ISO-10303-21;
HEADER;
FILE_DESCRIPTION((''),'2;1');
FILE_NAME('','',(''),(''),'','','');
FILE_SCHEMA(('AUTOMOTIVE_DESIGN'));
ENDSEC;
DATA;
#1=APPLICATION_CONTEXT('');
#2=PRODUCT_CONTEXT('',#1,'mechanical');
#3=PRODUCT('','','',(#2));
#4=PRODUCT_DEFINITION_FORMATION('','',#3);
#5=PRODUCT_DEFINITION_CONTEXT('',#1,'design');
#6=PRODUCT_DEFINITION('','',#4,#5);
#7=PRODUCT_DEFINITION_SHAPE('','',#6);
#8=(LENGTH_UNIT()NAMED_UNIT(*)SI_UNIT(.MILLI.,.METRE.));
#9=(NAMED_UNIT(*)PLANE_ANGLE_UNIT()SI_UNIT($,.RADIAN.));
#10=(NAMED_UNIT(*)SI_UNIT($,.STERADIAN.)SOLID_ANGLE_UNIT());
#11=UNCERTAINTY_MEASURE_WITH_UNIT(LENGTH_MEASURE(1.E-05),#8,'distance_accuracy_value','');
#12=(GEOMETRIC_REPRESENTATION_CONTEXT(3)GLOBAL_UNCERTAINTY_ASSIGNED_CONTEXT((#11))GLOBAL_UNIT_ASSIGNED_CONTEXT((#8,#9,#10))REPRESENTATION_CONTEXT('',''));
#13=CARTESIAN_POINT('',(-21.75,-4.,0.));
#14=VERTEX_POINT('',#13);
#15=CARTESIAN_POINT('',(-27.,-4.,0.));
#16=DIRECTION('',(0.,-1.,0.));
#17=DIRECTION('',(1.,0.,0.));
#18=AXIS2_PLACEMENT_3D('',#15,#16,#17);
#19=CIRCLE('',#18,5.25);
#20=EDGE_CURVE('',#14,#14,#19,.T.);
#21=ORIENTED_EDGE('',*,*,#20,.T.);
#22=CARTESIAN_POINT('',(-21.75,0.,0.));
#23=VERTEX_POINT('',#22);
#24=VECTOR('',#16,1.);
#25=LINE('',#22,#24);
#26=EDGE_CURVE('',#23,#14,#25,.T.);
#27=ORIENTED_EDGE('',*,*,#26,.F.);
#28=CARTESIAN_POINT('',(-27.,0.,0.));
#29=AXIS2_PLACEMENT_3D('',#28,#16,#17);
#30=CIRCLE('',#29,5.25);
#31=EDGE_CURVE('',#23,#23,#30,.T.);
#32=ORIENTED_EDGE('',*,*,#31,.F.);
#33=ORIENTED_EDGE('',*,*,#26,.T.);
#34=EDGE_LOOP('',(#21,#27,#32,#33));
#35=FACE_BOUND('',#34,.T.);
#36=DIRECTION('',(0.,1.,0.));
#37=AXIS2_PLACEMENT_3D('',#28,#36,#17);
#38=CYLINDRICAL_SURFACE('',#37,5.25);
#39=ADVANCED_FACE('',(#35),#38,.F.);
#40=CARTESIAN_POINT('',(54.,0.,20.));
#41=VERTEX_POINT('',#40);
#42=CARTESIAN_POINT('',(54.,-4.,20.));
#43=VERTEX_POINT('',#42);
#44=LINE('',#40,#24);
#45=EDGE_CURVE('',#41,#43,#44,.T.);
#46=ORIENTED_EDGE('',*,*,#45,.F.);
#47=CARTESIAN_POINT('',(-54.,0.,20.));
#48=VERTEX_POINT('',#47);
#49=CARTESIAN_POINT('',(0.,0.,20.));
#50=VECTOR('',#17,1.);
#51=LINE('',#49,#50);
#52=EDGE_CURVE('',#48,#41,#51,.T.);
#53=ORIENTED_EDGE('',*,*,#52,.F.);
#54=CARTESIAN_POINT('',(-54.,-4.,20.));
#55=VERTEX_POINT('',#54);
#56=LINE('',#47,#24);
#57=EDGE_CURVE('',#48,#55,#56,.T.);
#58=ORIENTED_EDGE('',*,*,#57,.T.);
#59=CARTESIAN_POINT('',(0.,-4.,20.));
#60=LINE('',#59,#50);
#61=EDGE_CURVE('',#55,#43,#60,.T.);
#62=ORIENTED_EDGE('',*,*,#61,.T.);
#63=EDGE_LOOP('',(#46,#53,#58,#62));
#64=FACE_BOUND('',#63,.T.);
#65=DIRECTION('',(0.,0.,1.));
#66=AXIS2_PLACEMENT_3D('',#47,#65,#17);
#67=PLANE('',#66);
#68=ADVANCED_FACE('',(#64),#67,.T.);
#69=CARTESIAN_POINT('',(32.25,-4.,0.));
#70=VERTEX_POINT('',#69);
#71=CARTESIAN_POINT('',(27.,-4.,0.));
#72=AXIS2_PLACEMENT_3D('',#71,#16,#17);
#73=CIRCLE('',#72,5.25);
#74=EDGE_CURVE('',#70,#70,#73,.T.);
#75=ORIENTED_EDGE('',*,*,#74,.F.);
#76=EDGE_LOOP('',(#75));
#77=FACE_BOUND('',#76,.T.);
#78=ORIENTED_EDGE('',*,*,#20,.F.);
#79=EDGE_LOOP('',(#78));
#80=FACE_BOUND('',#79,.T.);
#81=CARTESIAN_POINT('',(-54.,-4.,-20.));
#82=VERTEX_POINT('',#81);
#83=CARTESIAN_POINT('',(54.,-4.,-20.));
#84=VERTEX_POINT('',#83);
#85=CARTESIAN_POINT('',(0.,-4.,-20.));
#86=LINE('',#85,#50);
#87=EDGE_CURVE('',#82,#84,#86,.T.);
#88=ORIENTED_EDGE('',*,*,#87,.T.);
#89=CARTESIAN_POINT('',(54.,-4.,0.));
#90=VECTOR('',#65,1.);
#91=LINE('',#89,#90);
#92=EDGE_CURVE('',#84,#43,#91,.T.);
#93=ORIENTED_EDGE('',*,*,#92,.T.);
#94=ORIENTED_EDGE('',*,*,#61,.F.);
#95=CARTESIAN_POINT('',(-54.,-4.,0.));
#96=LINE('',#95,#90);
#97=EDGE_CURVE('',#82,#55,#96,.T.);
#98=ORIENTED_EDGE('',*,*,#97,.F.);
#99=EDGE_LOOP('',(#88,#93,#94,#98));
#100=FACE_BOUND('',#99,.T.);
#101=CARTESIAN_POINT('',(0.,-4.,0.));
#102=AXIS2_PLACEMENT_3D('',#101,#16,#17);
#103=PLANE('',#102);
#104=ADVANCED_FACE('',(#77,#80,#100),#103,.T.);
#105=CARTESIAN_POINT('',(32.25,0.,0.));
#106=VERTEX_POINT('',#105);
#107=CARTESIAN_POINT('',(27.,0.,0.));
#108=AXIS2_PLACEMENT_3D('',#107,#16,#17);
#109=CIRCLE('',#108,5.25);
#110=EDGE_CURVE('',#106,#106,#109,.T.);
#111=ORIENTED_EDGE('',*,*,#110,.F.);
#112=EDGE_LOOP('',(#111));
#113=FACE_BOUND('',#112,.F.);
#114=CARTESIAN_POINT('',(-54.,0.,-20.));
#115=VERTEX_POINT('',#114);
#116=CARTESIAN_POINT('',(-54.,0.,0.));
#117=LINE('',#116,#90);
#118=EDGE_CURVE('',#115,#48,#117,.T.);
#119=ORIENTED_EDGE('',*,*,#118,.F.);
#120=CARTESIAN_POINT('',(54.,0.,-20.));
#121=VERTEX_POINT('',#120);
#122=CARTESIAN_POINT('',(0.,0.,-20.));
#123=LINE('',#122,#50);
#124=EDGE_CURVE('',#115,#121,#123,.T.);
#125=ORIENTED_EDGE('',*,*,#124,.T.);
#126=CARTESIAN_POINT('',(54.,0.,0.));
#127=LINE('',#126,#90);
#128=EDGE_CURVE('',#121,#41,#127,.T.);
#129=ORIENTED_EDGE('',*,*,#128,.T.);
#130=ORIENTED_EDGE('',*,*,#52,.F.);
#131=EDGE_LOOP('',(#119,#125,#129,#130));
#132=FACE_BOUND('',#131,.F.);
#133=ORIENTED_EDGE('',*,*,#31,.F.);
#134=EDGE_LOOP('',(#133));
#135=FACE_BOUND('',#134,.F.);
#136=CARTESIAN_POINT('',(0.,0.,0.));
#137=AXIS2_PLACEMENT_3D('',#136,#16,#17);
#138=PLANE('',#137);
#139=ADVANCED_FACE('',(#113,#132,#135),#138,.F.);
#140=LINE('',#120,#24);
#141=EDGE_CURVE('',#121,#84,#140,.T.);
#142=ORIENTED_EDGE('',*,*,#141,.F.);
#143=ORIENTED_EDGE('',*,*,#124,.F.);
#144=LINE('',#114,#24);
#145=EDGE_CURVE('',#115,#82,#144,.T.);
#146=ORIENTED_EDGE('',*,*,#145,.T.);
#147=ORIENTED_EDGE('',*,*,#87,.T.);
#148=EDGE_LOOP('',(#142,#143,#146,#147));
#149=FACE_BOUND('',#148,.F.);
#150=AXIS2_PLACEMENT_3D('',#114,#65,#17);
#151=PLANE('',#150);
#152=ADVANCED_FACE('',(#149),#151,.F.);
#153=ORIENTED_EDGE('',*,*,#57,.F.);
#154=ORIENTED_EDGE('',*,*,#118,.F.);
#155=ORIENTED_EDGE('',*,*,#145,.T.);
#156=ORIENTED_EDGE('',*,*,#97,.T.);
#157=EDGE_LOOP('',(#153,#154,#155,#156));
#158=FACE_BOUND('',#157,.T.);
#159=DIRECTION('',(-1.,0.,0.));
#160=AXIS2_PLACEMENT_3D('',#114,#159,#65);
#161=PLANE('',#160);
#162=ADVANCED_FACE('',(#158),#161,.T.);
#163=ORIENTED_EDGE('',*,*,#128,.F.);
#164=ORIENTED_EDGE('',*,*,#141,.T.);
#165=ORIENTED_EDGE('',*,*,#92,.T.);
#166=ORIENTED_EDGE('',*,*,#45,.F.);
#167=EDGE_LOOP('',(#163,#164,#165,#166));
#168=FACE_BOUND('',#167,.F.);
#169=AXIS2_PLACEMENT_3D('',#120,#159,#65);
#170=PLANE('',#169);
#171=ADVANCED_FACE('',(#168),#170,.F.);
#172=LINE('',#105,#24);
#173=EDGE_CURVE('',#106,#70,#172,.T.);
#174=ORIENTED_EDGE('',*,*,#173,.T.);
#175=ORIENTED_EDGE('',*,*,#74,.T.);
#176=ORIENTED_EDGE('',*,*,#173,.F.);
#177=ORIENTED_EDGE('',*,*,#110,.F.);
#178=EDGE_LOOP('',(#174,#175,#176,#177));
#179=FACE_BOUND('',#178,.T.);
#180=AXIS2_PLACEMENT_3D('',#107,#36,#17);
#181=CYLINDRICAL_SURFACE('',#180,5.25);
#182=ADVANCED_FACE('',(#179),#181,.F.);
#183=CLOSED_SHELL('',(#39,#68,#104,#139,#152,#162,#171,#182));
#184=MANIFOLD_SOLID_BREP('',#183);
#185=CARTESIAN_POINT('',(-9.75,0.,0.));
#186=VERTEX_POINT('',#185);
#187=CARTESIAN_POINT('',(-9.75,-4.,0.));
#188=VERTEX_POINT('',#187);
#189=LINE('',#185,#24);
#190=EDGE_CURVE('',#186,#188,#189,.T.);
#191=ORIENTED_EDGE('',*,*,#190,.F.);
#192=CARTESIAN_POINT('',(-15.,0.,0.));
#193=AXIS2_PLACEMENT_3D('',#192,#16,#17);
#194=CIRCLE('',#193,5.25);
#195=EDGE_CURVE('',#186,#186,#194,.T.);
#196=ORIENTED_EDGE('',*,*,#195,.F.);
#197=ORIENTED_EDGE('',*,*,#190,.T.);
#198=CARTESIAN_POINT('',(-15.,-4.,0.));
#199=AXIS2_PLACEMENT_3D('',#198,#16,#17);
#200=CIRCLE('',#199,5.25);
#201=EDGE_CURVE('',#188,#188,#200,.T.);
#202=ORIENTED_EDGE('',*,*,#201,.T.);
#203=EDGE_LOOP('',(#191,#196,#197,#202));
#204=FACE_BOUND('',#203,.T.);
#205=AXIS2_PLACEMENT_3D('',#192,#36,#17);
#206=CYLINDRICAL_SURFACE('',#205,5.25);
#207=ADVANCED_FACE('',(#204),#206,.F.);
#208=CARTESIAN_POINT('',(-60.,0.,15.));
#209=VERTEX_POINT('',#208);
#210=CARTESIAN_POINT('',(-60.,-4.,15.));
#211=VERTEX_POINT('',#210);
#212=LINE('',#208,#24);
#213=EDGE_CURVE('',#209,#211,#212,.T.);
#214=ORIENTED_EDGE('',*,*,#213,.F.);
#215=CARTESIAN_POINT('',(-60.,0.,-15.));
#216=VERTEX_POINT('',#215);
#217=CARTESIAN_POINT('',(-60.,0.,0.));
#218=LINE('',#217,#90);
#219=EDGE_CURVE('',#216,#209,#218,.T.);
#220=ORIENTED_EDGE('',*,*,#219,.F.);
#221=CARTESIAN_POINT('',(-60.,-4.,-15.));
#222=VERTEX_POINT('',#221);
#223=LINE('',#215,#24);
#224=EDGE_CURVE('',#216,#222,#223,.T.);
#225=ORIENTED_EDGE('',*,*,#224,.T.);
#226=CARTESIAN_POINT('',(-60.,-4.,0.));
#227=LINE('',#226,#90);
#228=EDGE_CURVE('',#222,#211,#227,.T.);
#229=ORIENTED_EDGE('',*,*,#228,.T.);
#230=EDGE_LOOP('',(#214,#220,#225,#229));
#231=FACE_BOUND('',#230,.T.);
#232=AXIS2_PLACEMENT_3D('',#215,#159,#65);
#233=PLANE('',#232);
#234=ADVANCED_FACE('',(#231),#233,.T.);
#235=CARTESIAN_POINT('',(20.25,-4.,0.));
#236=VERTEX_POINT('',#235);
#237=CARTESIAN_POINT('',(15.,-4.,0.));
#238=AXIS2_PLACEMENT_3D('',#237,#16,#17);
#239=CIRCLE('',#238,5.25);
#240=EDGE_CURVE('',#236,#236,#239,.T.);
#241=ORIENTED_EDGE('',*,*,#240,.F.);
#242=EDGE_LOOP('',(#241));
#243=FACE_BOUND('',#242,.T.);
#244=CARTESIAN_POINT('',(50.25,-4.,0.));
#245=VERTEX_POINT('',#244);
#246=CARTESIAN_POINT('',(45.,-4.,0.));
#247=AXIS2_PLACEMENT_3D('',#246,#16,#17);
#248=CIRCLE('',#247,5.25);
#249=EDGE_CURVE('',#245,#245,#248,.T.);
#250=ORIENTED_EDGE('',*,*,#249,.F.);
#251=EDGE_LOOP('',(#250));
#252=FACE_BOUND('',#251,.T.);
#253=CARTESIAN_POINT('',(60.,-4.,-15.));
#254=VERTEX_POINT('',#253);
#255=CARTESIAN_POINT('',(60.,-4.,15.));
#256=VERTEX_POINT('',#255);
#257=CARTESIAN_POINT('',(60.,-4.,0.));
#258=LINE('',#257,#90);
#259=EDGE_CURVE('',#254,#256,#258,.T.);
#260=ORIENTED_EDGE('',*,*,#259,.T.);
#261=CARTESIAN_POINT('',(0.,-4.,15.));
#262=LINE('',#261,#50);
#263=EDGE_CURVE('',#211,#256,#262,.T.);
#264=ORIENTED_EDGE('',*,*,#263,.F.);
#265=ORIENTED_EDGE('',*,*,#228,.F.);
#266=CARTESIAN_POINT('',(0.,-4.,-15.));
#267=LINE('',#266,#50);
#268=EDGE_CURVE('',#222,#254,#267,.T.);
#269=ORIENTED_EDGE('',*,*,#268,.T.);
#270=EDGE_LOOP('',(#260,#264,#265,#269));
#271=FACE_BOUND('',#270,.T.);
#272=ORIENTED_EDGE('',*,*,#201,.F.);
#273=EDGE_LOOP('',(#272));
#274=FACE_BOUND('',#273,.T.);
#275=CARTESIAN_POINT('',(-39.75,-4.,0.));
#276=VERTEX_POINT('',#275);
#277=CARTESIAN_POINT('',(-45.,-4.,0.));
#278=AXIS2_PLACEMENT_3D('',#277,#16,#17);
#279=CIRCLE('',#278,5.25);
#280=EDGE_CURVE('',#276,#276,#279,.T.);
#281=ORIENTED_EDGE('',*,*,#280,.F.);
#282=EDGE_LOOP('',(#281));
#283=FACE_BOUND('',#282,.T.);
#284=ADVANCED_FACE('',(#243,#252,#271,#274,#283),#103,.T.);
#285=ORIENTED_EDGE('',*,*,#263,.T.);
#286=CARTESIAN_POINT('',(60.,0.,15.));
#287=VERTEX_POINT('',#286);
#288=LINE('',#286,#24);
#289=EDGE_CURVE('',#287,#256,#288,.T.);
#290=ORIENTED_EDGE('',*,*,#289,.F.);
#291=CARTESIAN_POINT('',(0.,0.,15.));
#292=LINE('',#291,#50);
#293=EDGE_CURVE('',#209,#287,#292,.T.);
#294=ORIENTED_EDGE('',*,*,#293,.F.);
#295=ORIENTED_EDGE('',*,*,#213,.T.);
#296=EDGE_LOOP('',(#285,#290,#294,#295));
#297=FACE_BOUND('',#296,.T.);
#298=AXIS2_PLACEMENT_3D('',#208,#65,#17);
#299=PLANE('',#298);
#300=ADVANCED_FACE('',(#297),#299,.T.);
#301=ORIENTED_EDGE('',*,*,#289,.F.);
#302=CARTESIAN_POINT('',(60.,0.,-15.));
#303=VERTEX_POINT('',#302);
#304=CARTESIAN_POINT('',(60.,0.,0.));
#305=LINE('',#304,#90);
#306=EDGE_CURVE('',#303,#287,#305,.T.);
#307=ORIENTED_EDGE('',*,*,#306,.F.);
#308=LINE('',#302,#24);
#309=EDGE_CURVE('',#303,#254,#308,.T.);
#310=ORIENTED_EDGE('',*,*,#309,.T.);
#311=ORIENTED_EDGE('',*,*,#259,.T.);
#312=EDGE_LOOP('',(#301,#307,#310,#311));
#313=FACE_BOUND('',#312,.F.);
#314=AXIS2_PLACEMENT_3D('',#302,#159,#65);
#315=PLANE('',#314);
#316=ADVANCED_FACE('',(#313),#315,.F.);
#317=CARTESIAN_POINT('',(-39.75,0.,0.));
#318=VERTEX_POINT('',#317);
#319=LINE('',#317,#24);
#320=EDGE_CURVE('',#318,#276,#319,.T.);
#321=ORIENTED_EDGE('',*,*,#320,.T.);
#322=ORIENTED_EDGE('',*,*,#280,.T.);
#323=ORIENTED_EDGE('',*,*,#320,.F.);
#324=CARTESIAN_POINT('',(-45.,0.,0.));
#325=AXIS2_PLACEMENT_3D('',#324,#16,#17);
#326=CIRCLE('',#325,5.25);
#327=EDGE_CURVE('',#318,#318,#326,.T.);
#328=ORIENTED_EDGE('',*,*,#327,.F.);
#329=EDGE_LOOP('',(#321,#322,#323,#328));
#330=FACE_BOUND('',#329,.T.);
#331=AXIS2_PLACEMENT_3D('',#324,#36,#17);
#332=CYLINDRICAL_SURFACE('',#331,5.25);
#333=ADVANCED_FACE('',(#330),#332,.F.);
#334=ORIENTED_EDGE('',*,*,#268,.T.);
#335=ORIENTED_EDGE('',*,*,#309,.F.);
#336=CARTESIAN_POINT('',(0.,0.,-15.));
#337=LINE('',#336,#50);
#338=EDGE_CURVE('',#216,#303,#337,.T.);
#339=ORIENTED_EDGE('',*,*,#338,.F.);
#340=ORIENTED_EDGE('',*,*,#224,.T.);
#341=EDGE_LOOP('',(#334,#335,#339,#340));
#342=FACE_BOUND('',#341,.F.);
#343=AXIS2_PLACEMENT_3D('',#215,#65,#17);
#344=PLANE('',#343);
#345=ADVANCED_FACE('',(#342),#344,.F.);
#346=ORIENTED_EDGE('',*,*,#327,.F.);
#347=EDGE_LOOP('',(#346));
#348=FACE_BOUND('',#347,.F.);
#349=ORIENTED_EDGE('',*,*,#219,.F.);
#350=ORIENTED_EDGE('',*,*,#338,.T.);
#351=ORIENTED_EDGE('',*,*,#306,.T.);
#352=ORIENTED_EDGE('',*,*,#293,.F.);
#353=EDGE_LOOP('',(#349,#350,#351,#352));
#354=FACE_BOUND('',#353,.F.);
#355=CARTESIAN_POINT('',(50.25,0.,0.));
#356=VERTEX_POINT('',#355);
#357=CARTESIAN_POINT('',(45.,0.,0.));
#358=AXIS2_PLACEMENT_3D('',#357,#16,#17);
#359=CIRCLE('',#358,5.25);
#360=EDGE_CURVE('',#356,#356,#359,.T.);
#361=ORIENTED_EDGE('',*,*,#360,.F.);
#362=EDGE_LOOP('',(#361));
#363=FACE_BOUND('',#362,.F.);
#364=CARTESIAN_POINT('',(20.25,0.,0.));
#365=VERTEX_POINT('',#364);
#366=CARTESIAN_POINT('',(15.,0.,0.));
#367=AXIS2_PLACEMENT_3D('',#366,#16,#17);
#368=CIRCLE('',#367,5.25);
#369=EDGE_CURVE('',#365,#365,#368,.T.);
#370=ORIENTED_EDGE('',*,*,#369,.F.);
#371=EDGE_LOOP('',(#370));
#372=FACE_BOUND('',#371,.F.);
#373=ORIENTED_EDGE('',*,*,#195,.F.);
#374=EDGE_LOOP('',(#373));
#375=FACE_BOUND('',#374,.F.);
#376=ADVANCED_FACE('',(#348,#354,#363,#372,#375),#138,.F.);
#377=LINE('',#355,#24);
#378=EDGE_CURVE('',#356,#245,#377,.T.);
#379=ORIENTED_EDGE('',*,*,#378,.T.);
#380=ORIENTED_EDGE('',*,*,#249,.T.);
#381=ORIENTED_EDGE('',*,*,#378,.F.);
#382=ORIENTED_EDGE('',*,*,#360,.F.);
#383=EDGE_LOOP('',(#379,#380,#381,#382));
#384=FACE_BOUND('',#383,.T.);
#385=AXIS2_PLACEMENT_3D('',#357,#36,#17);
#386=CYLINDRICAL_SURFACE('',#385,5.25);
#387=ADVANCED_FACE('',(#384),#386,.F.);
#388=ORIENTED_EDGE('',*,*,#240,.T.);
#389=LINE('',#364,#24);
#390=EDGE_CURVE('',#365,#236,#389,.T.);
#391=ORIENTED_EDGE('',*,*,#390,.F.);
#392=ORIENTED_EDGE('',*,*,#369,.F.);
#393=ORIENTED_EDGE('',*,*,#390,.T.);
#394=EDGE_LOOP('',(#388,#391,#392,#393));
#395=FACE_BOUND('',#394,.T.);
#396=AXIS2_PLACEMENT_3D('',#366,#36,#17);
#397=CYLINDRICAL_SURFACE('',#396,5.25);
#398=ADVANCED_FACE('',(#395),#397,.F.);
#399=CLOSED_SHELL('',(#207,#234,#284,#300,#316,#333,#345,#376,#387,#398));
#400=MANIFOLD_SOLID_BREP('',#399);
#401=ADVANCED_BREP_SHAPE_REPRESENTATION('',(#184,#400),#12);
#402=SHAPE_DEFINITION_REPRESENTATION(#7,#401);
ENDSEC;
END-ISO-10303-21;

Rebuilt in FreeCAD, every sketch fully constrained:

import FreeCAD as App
import Part
import Sketcher

V = App.Vector

doc = App.newDocument("Part")
body = doc.addObject("PartDesign::Body", "Body")

# Sketch on XZ plane
sketch1 = body.newObject("Sketcher::SketchObject", "Sketch")
sketch1.AttachmentSupport = (doc.getObject("XZ_Plane"), [""])
sketch1.MapMode = "FlatFace"
sketch1.addGeometry(Part.LineSegment(V(-60, 15, 0), V(-60, -15, 0)), False)
sketch1.addGeometry(Part.LineSegment(V(-60, -15, 0), V(60, -15, 0)), False)
sketch1.addGeometry(Part.LineSegment(V(60, -15, 0), V(60, 15, 0)), False)
sketch1.addGeometry(Part.LineSegment(V(60, 15, 0), V(-60, 15, 0)), False)
sketch1.addGeometry(Part.Circle(V(-45, 0, 0), V(0, 0, 1), 5), False)
sketch1.addGeometry(Part.Circle(V(-15, 0, 0), V(0, 0, 1), 5), False)
sketch1.addGeometry(Part.Circle(V(15, 0, 0), V(0, 0, 1), 5), False)
sketch1.addGeometry(Part.Circle(V(45, 0, 0), V(0, 0, 1), 5), False)
sketch1.addConstraint(Sketcher.Constraint("Coincident", 0, 2, 1, 1))
sketch1.addConstraint(Sketcher.Constraint("Coincident", 1, 2, 2, 1))
sketch1.addConstraint(Sketcher.Constraint("Coincident", 2, 2, 3, 1))
sketch1.addConstraint(Sketcher.Constraint("Coincident", 3, 2, 0, 1))
sketch1.addConstraint(Sketcher.Constraint("Vertical", 0))
sketch1.addConstraint(Sketcher.Constraint("Horizontal", 1))
sketch1.addConstraint(Sketcher.Constraint("Vertical", 2))
sketch1.addConstraint(Sketcher.Constraint("Horizontal", 3))
sketch1.addConstraint(Sketcher.Constraint("Equal", 4, 5))
sketch1.addConstraint(Sketcher.Constraint("Equal", 5, 6))
sketch1.addConstraint(Sketcher.Constraint("Equal", 6, 7))
sketch1.addConstraint(Sketcher.Constraint("Symmetric", 5, 3, 6, 3, -1, 1))
sketch1.addConstraint(Sketcher.Constraint("Symmetric", 4, 3, 7, 3, -1, 1))
sketch1.addConstraint(Sketcher.Constraint("Symmetric", 0, 2, 2, 2, -1, 1))
sketch1.addConstraint(Sketcher.Constraint("PointOnObject", 4, 3, -1))
sketch1.addConstraint(Sketcher.Constraint("PointOnObject", 5, 3, -1))
sketch1.addConstraint(Sketcher.Constraint("Diameter", 4, 10.5))
sketch1.addConstraint(Sketcher.Constraint("DistanceX", 1, 1, 1, 2, 120.0))
sketch1.addConstraint(Sketcher.Constraint("DistanceY", 0, 2, 0, 1, 30.0))
sketch1.addConstraint(Sketcher.Constraint("DistanceX", 4, 3, -1, 1, 45.0))
sketch1.addConstraint(Sketcher.Constraint("DistanceX", 5, 3, -1, 1, 15.0))
pad1 = body.newObject("PartDesign::Pad", "Pad")
pad1.Profile = sketch1
pad1.Length = 4
body2 = doc.addObject("PartDesign::Body", "Body001")

# Sketch on XZ plane
sketch2 = body2.newObject("Sketcher::SketchObject", "Sketch001")
sketch2.AttachmentSupport = (doc.getObject("XZ_Plane001"), [""])
sketch2.MapMode = "FlatFace"
sketch2.addGeometry(Part.LineSegment(V(-54, 20, 0), V(-54, -20, 0)), False)
sketch2.addGeometry(Part.LineSegment(V(-54, -20, 0), V(54, -20, 0)), False)
sketch2.addGeometry(Part.LineSegment(V(54, -20, 0), V(54, 20, 0)), False)
sketch2.addGeometry(Part.LineSegment(V(54, 20, 0), V(-54, 20, 0)), False)
sketch2.addGeometry(Part.Circle(V(-27, 0, 0), V(0, 0, 1), 5), False)
sketch2.addGeometry(Part.Circle(V(27, 0, 0), V(0, 0, 1), 5), False)
sketch2.addConstraint(Sketcher.Constraint("Coincident", 0, 2, 1, 1))
sketch2.addConstraint(Sketcher.Constraint("Coincident", 1, 2, 2, 1))
sketch2.addConstraint(Sketcher.Constraint("Coincident", 2, 2, 3, 1))
sketch2.addConstraint(Sketcher.Constraint("Coincident", 3, 2, 0, 1))
sketch2.addConstraint(Sketcher.Constraint("Vertical", 0))
sketch2.addConstraint(Sketcher.Constraint("Horizontal", 1))
sketch2.addConstraint(Sketcher.Constraint("Vertical", 2))
sketch2.addConstraint(Sketcher.Constraint("Horizontal", 3))
sketch2.addConstraint(Sketcher.Constraint("Equal", 4, 5))
sketch2.addConstraint(Sketcher.Constraint("Symmetric", 4, 3, 5, 3, -1, 1))
sketch2.addConstraint(Sketcher.Constraint("Symmetric", 0, 2, 2, 2, -1, 1))
sketch2.addConstraint(Sketcher.Constraint("PointOnObject", 4, 3, -1))
sketch2.addConstraint(Sketcher.Constraint("Diameter", 4, 10.5))
sketch2.addConstraint(Sketcher.Constraint("DistanceX", 1, 1, 1, 2, 108.0))
sketch2.addConstraint(Sketcher.Constraint("DistanceY", 0, 2, 0, 1, 40.0))
sketch2.addConstraint(Sketcher.Constraint("DistanceX", 4, 3, -1, 1, 27.0))
pad2 = body2.newObject("PartDesign::Pad", "Pad001")
pad2.Profile = sketch2
pad2.Length = 4

doc.recompute()
